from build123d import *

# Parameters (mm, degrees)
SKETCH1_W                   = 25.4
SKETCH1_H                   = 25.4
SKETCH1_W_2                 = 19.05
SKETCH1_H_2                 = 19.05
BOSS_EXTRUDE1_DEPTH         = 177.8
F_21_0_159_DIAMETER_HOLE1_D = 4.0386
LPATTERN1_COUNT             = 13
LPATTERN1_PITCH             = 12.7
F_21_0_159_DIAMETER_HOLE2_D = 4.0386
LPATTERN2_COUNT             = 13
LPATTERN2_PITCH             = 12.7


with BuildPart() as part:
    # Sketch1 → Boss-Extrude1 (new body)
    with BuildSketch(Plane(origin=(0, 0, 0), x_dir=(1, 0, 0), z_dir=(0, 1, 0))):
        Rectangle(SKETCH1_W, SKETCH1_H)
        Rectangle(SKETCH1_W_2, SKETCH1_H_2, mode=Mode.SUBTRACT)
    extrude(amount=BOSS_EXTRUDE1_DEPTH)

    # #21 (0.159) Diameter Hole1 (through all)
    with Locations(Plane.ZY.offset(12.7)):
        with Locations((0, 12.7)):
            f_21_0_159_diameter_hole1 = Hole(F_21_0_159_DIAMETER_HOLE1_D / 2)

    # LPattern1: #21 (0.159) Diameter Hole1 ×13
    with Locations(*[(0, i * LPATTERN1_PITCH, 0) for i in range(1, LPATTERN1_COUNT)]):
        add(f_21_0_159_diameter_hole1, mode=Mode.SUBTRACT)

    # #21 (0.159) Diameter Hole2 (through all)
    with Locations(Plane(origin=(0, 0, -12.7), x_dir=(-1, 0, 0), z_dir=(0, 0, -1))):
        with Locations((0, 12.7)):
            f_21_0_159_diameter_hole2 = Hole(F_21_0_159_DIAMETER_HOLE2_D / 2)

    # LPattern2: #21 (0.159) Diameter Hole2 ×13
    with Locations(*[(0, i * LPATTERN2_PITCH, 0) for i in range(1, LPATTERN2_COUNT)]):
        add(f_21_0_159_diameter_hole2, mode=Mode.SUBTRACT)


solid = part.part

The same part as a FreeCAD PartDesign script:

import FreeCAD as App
import Part
import Sketcher
Q = App.Units.Quantity

doc = App.newDocument("Part")
body = doc.addObject("PartDesign::Body", "Body")

# Sketch on XZ plane
sketch1 = body.newObject("Sketcher::SketchObject", "Sketch")
sketch1.AttachmentSupport = (doc.getObject("XZ_Plane"), [""])
sketch1.MapMode = "FlatFace"
sketch1.addGeometry(Part.LineSegment(App.Vector(-13, -13, 0), App.Vector(-13, 13, 0)), False)
sketch1.addGeometry(Part.LineSegment(App.Vector(-13, 13, 0), App.Vector(13, 13, 0)), False)
sketch1.addGeometry(Part.LineSegment(App.Vector(13, 13, 0), App.Vector(13, -13, 0)), False)
sketch1.addGeometry(Part.LineSegment(App.Vector(13, -13, 0), App.Vector(-13, -13, 0)), False)
sketch1.addGeometry(Part.LineSegment(App.Vector(10, 10, 0), App.Vector(-10, 10, 0)), False)
sketch1.addGeometry(Part.LineSegment(App.Vector(-10, 10, 0), App.Vector(-10, -10, 0)), False)
sketch1.addGeometry(Part.LineSegment(App.Vector(-10, -10, 0), App.Vector(10, -10, 0)), False)
sketch1.addGeometry(Part.LineSegment(App.Vector(10, -10, 0), App.Vector(10, 10, 0)), False)
sketch1.addConstraint(Sketcher.Constraint("Coincident", 0, 2, 1, 1))
sketch1.addConstraint(Sketcher.Constraint("Coincident", 1, 2, 2, 1))
sketch1.addConstraint(Sketcher.Constraint("Coincident", 2, 2, 3, 1))
sketch1.addConstraint(Sketcher.Constraint("Coincident", 3, 2, 0, 1))
sketch1.addConstraint(Sketcher.Constraint("Coincident", 4, 2, 5, 1))
sketch1.addConstraint(Sketcher.Constraint("Coincident", 5, 2, 6, 1))
sketch1.addConstraint(Sketcher.Constraint("Coincident", 6, 2, 7, 1))
sketch1.addConstraint(Sketcher.Constraint("Coincident", 7, 2, 4, 1))
sketch1.addConstraint(Sketcher.Constraint("Vertical", 0))
sketch1.addConstraint(Sketcher.Constraint("Horizontal", 1))
sketch1.addConstraint(Sketcher.Constraint("Vertical", 2))
sketch1.addConstraint(Sketcher.Constraint("Horizontal", 3))
sketch1.addConstraint(Sketcher.Constraint("Horizontal", 4))
sketch1.addConstraint(Sketcher.Constraint("Vertical", 5))
sketch1.addConstraint(Sketcher.Constraint("Horizontal", 6))
sketch1.addConstraint(Sketcher.Constraint("Vertical", 7))
sketch1.addConstraint(Sketcher.Constraint("Symmetric", 0, 2, 2, 2, -1, 1))
sketch1.addConstraint(Sketcher.Constraint("Symmetric", 4, 2, 6, 2, -1, 1))
sketch1.addConstraint(Sketcher.Constraint("Equal", 3, 0))
sketch1.addConstraint(Sketcher.Constraint("Equal", 6, 5))
sketch1.addConstraint(Sketcher.Constraint("DistanceX", 1, 1, 1, 2, Q("1 in")))
sketch1.addConstraint(Sketcher.Constraint("DistanceX", 4, 2, 4, 1, Q("0.75 in")))
pad1 = body.newObject("PartDesign::Pad", "Pad")
pad1.Profile = sketch1
pad1.Length = Q("7 in")
pad1.Reversed = True

# Sketch on YZ plane
sketch2 = body.newObject("Sketcher::SketchObject", "Sketch001")
sketch2.AttachmentSupport = (doc.getObject("YZ_Plane"), [""])
sketch2.MapMode = "FlatFace"
sketch2.AttachmentOffset = App.Placement(App.Vector(0, 0, -0.5 * 25.4), App.Rotation())
sketch2.addGeometry(Part.Circle(App.Vector(12.7, 0, 0), App.Vector(0, 0, 1), 2), False)
sketch2.addConstraint(Sketcher.Constraint("PointOnObject", 0, 3, -1))
sketch2.addConstraint(Sketcher.Constraint("Diameter", 0, Q("0.159 in")))
sketch2.addConstraint(Sketcher.Constraint("DistanceX", -1, 1, 0, 3, Q("0.5 in")))
doc.recompute()
hole = body.newObject("PartDesign::Hole", "Hole")
hole.Profile = sketch2
hole.ThreadType = "None"
hole.Diameter = Q("0.159 in")
hole.DepthType = "ThroughAll"
hole.Reversed = True
doc.recompute()

linearpattern = body.newObject("PartDesign::LinearPattern", "LinearPattern")
linearpattern.Originals = [hole]
linearpattern.Direction = (doc.getObject("Y_Axis"), [""])
linearpattern.Mode = "offset"
linearpattern.Offset = Q("0.5 in")
linearpattern.Occurrences = 13
body.Tip = linearpattern

# Sketch on XY plane
sketch3 = body.newObject("Sketcher::SketchObject", "Sketch002")
sketch3.AttachmentSupport = (doc.getObject("XY_Plane"), [""])
sketch3.MapMode = "FlatFace"
sketch3.AttachmentOffset = App.Placement(App.Vector(0, 0, -0.5 * 25.4), App.Rotation())
sketch3.addGeometry(Part.Circle(App.Vector(0, 12.7, 0), App.Vector(0, 0, 1), 2), False)
sketch3.addConstraint(Sketcher.Constraint("PointOnObject", 0, 3, -2))
sketch3.addConstraint(Sketcher.Constraint("Diameter", 0, Q("0.159 in")))
sketch3.addConstraint(Sketcher.Constraint("DistanceY", -1, 1, 0, 3, Q("0.5 in")))
doc.recompute()
hole2 = body.newObject("PartDesign::Hole", "Hole001")
hole2.Profile = sketch3
hole2.ThreadType = "None"
hole2.Diameter = Q("0.159 in")
hole2.DepthType = "ThroughAll"
hole2.Reversed = True
doc.recompute()

linearpattern2 = body.newObject("PartDesign::LinearPattern", "LinearPattern001")
linearpattern2.Originals = [hole2]
linearpattern2.Direction = (doc.getObject("Y_Axis"), [""])
linearpattern2.Mode = "offset"
linearpattern2.Offset = Q("0.5 in")
linearpattern2.Occurrences = 13
body.Tip = linearpattern2

doc.recompute()
